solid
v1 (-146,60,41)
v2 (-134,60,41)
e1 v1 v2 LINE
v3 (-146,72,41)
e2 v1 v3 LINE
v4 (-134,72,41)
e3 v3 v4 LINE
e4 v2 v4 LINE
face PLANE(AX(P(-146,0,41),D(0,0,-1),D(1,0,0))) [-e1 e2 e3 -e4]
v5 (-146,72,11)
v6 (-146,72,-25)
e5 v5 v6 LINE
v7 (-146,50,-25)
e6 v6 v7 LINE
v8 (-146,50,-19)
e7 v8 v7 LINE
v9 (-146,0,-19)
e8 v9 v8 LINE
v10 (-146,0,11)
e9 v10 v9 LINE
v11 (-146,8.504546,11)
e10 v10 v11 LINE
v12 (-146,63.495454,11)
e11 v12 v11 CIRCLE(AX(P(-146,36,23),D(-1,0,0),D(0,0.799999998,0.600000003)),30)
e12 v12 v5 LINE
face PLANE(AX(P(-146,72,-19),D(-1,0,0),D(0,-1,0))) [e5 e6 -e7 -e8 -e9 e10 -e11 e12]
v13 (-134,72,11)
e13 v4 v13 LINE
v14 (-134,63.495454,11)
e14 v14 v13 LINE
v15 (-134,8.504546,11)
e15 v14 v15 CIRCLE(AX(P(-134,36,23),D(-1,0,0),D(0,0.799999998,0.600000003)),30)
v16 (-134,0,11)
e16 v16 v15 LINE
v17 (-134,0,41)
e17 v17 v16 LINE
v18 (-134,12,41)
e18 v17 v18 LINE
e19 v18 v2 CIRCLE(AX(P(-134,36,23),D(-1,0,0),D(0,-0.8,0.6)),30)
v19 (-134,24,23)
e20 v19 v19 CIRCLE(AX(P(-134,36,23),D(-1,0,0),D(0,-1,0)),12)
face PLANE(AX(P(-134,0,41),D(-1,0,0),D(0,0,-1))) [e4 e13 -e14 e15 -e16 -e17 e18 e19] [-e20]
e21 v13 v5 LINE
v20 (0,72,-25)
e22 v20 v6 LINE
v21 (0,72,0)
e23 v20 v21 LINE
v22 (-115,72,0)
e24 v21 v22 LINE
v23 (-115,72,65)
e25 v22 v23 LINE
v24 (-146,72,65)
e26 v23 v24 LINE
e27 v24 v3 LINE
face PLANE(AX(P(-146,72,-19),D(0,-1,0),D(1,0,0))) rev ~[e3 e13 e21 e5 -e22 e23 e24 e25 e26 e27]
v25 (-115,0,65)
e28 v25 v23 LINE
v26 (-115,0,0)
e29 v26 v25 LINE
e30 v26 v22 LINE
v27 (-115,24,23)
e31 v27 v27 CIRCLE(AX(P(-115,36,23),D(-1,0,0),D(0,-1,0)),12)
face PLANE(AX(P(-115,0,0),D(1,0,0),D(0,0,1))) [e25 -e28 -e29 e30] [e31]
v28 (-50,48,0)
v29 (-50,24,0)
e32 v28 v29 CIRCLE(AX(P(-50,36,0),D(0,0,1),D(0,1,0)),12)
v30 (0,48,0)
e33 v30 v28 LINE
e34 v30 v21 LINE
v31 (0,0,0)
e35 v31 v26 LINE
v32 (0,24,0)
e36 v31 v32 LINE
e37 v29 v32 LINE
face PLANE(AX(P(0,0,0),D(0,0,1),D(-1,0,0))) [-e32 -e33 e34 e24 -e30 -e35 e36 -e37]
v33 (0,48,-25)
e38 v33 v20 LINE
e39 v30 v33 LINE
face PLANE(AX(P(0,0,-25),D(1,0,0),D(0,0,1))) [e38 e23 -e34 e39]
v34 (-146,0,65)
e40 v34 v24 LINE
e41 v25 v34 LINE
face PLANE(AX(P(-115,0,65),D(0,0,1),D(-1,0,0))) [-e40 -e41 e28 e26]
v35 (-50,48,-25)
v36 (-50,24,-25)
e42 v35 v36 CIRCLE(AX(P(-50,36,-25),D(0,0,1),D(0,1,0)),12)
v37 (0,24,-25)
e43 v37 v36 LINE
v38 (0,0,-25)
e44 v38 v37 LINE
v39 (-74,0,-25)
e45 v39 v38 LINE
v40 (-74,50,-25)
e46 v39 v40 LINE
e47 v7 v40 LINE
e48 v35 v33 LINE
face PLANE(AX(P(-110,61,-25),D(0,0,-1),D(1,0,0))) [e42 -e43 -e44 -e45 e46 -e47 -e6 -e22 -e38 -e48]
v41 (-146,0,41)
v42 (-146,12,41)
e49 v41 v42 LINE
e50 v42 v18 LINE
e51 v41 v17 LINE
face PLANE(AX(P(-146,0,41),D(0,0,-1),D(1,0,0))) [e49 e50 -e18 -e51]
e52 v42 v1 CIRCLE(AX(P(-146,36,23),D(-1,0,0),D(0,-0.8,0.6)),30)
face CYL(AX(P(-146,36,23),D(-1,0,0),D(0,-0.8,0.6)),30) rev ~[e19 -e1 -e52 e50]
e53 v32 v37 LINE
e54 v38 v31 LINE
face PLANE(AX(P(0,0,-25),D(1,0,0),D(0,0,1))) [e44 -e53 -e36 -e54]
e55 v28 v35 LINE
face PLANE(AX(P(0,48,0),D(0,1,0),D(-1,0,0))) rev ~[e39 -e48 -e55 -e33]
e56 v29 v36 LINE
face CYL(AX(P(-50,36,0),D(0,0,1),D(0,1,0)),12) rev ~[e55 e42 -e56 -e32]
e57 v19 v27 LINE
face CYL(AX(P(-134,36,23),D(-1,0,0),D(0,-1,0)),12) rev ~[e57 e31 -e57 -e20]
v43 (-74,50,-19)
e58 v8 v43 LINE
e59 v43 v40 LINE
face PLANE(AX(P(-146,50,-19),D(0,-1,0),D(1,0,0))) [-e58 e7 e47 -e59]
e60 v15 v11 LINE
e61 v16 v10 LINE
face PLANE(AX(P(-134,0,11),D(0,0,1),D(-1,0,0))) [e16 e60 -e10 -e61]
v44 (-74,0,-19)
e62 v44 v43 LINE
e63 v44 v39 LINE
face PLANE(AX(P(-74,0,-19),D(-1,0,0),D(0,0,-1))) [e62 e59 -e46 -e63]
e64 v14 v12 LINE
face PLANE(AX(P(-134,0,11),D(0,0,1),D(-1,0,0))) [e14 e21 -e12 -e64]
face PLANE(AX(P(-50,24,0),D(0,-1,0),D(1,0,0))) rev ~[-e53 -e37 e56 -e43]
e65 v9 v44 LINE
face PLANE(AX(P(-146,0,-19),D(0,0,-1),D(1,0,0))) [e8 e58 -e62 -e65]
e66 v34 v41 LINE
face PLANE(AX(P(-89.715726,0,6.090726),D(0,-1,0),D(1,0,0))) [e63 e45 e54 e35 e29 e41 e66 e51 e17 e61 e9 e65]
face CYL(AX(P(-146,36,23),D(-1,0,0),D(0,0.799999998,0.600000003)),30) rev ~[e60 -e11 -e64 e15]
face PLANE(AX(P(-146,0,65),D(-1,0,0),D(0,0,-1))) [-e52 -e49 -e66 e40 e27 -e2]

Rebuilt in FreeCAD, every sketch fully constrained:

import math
import FreeCAD as App
import Part
import Sketcher
from FreeCAD import Vector


def add_polygon(sketch, points):
    """Adds a closed chain of lines whose ends are joined by coincident constraints."""
    first, n = sketch.GeometryCount, len(points)
    for a, b in zip(points, points[1:] + points[:1]):
        sketch.addGeometry(Part.LineSegment(App.Vector(*a, 0), App.Vector(*b, 0)), False)
    for i in range(n):
        sketch.addConstraint(Sketcher.Constraint("Coincident", first + i, 2, first + (i + 1) % n, 1))

doc = App.newDocument("Part")
body = doc.addObject("PartDesign::Body", "Body")

sketch1 = body.newObject("Sketcher::SketchObject", "Sketch")
sketch1.AttachmentSupport = (doc.getObject("XZ_Plane"), [""])
sketch1.MapMode = "FlatFace"
add_polygon(sketch1, [(-134, 11), (-146, 11), (-146, -19), (-74, -19), (-74, -25), (0, -25), (0, 0), (-115, 0), (-115, 65), (-146, 65), (-146, 41), (-134, 41)])
sketch1.addConstraint(Sketcher.Constraint("Horizontal", 0))
sketch1.addConstraint(Sketcher.Constraint("Vertical", 1))
sketch1.addConstraint(Sketcher.Constraint("Horizontal", 2))
sketch1.addConstraint(Sketcher.Constraint("Vertical", 3))
sketch1.addConstraint(Sketcher.Constraint("Horizontal", 4))
sketch1.addConstraint(Sketcher.Constraint("Vertical", 5))
sketch1.addConstraint(Sketcher.Constraint("Horizontal", 6))
sketch1.addConstraint(Sketcher.Constraint("Vertical", 7))
sketch1.addConstraint(Sketcher.Constraint("Horizontal", 8))
sketch1.addConstraint(Sketcher.Constraint("Vertical", 9))
sketch1.addConstraint(Sketcher.Constraint("Horizontal", 10))
sketch1.addConstraint(Sketcher.Constraint("Vertical", 11))
sketch1.addConstraint(Sketcher.Constraint("Coincident", 5, 2, -1, 1))
sketch1.addConstraint(Sketcher.Constraint("Vertical", 1, 2, 8, 2))
sketch1.addConstraint(Sketcher.Constraint("Equal", 1, 11))
sketch1.addConstraint(Sketcher.Constraint("DistanceX", 0, 2, 0, 1, 12.0))
sketch1.addConstraint(Sketcher.Constraint("DistanceX", 2, 1, 2, 2, 72.0))
sketch1.addConstraint(Sketcher.Constraint("DistanceX", 4, 1, 4, 2, 74.0))
sketch1.addConstraint(Sketcher.Constraint("DistanceX", 6, 2, 6, 1, 115.0))
sketch1.addConstraint(Sketcher.Constraint("DistanceY", 1, 2, 1, 1, 30.0))
sketch1.addConstraint(Sketcher.Constraint("DistanceY", 3, 2, 3, 1, 6.0))
sketch1.addConstraint(Sketcher.Constraint("DistanceY", 5, 1, 5, 2, 25.0))
sketch1.addConstraint(Sketcher.Constraint("DistanceY", 7, 1, 7, 2, 65.0))
pad1 = body.newObject("PartDesign::Pad", "Pad")
pad1.Profile = sketch1
pad1.Length = 72
pad1.Reversed = True

sketch2 = body.newObject("Sketcher::SketchObject", "Sketch001")
sketch2.AttachmentSupport = (doc.getObject("XY_Plane"), [""])
sketch2.MapMode = "FlatFace"
sketch2.AttachmentOffset = App.Placement(Vector(0, 0, -19), App.Rotation())
add_polygon(sketch2, [(-146, 50), (-146, 72), (-74, 72), (-74, 50)])
sketch2.addConstraint(Sketcher.Constraint("Vertical", 0))
sketch2.addConstraint(Sketcher.Constraint("Horizontal", 1))
sketch2.addConstraint(Sketcher.Constraint("Vertical", 2))
sketch2.addConstraint(Sketcher.Constraint("Horizontal", 3))
sketch2.addConstraint(Sketcher.Constraint("DistanceX", 1, 1, 1, 2, 72.0))
sketch2.addConstraint(Sketcher.Constraint("DistanceY", 0, 1, 0, 2, 22.0))
sketch2.addConstraint(Sketcher.Constraint("DistanceX", 0, 2, -1, 1, 146.0))
sketch2.addConstraint(Sketcher.Constraint("DistanceY", -1, 1, 0, 2, 72.0))
pad2 = body.newObject("PartDesign::Pad", "Pad001")
pad2.Profile = sketch2
pad2.Length = 6
pad2.Reversed = True

sketch3 = body.newObject("Sketcher::SketchObject", "Sketch002")
sketch3.AttachmentSupport = (doc.getObject("XY_Plane"), [""])
sketch3.MapMode = "FlatFace"
sketch3.addGeometry(Part.LineSegment(Vector(-50, 24, 0), Vector(0, 24, 0)), False)
sketch3.addGeometry(Part.LineSegment(Vector(0, 24, 0), Vector(0, 48, 0)), False)
sketch3.addGeometry(Part.LineSegment(Vector(0, 48, 0), Vector(-50, 48, 0)), False)
sketch3.addGeometry(Part.ArcOfCircle(Part.Circle(Vector(-50, 36, 0), Vector(0, 0, 1), 12), math.radians(90), math.radians(270)), False)
sketch3.addConstraint(Sketcher.Constraint("Coincident", 0, 2, 1, 1))
sketch3.addConstraint(Sketcher.Constraint("Coincident", 1, 2, 2, 1))
sketch3.addConstraint(Sketcher.Constraint("Tangent", 2, 2, 3, 1))
sketch3.addConstraint(Sketcher.Constraint("Tangent", 3, 2, 0, 1))
sketch3.addConstraint(Sketcher.Constraint("Horizontal", 0))
sketch3.addConstraint(Sketcher.Constraint("Vertical", 1))
sketch3.addConstraint(Sketcher.Constraint("Horizontal", 2))
sketch3.addConstraint(Sketcher.Constraint("PointOnObject", 0, 2, -2))
sketch3.addConstraint(Sketcher.Constraint("Radius", 3, 12.0))
sketch3.addConstraint(Sketcher.Constraint("DistanceX", 0, 1, 0, 2, 50.0))
sketch3.addConstraint(Sketcher.Constraint("DistanceY", -1, 1, 3, 3, 36.0))
pocket1 = body.newObject("PartDesign::Pocket", "Pocket")
pocket1.Profile = sketch3
pocket1.Type = "ThroughAll"

sketch4 = body.newObject("Sketcher::SketchObject", "Sketch003")
sketch4.AttachmentSupport = (doc.getObject("YZ_Plane"), [""])
sketch4.MapMode = "FlatFace"
sketch4.AttachmentOffset = App.Placement(Vector(0, 0, -146), App.Rotation())
sketch4.addGeometry(Part.LineSegment(Vector(14, 11, 0), Vector(58, 11, 0)), False)
sketch4.addGeometry(Part.ArcOfCircle(Part.Circle(Vector(36, 31, 0), Vector(0, 0, 1), 30), math.radians(-138), math.radians(-42)), False)
sketch4.addConstraint(Sketcher.Constraint("Coincident", 0, 1, 1, 1))
sketch4.addConstraint(Sketcher.Constraint("Coincident", 1, 2, 0, 2))
sketch4.addConstraint(Sketcher.Constraint("Horizontal", 0))
sketch4.addConstraint(Sketcher.Constraint("Radius", 1, 30.000001))
sketch4.addConstraint(Sketcher.Constraint("DistanceX", -1, 1, 1, 3, 36.0))
sketch4.addConstraint(Sketcher.Constraint("DistanceY", -1, 1, 0, 1, 11.0))
sketch4.addConstraint(Sketcher.Constraint("DistanceX", 0, 1, 0, 2, 44.276294))
pocket2 = body.newObject("PartDesign::Pocket", "Pocket001")
pocket2.Profile = sketch4
pocket2.Length = 12
pocket2.Reversed = True

sketch5 = body.newObject("Sketcher::SketchObject", "Sketch004")
sketch5.AttachmentSupport = (doc.getObject("YZ_Plane"), [""])
sketch5.MapMode = "FlatFace"
sketch5.AttachmentOffset = App.Placement(Vector(0, 0, -146), App.Rotation())
sketch5.addGeometry(Part.ArcOfCircle(Part.Circle(Vector(36, 23, 0), Vector(0, 0, 1), 30), math.radians(37), math.radians(143)), False)
sketch5.addGeometry(Part.ArcOfCircle(Part.Circle(Vector(36, 23, 0), Vector(0, 0, 1), 30), math.radians(-170), math.radians(37)), False)
sketch5.addGeometry(Part.LineSegment(Vector(6, 18, 0), Vector(9, 35, 0)), False)
sketch5.addGeometry(Part.ArcOfCircle(Part.Circle(Vector(36, 23, 0), Vector(0, 0, 1), 30), math.radians(143.13), math.radians(155.9)), False)
sketch5.addConstraint(Sketcher.Constraint("Tangent", 0, 1, 1, 2))
sketch5.addConstraint(Sketcher.Constraint("Coincident", 1, 1, 2, 1))
sketch5.addConstraint(Sketcher.Constraint("Coincident", 2, 2, 3, 2))
sketch5.addConstraint(Sketcher.Constraint("Tangent", 3, 1, 0, 2))
sketch5.addConstraint(Sketcher.Constraint("Equal", 0, 1))
sketch5.addConstraint(Sketcher.Constraint("Horizontal", 0, 1, 3, 1))
sketch5.addConstraint(Sketcher.Constraint("Radius", 0, 30.0))
sketch5.addConstraint(Sketcher.Constraint("DistanceX", -1, 1, 0, 3, 36.0))
sketch5.addConstraint(Sketcher.Constraint("DistanceY", -1, 1, 0, 3, 23.0))
sketch5.addConstraint(Sketcher.Constraint("DistanceX", -1, 1, 0, 1, 60.0))
sketch5.addConstraint(Sketcher.Constraint("Radius", 3, 30.000023))
sketch5.addConstraint(Sketcher.Constraint("DistanceX", 1, 1, 2, 2, 2.123499))
sketch5.addConstraint(Sketcher.Constraint("DistanceX", -1, 1, 1, 1, 6.492059))
pocket3 = body.newObject("PartDesign::Pocket", "Pocket002")
pocket3.Profile = sketch5
pocket3.Length = 12
pocket3.Reversed = True

sketch6 = body.newObject("Sketcher::SketchObject", "Sketch005")
sketch6.AttachmentSupport = (doc.getObject("YZ_Plane"), [""])
sketch6.MapMode = "FlatFace"
sketch6.AttachmentOffset = App.Placement(Vector(0, 0, -134), App.Rotation())
sketch6.addGeometry(Part.Circle(Vector(36, 23, 0), Vector(0, 0, 1), 12), False)
sketch6.addConstraint(Sketcher.Constraint("Diameter", 0, 24.0))
sketch6.addConstraint(Sketcher.Constraint("DistanceX", -1, 1, 0, 3, 36.0))
sketch6.addConstraint(Sketcher.Constraint("DistanceY", -1, 1, 0, 3, 23.0))
pocket4 = body.newObject("PartDesign::Pocket", "Pocket003")
pocket4.Profile = sketch6
pocket4.Type = "ThroughAll"
pocket4.Reversed = True

doc.recompute()
